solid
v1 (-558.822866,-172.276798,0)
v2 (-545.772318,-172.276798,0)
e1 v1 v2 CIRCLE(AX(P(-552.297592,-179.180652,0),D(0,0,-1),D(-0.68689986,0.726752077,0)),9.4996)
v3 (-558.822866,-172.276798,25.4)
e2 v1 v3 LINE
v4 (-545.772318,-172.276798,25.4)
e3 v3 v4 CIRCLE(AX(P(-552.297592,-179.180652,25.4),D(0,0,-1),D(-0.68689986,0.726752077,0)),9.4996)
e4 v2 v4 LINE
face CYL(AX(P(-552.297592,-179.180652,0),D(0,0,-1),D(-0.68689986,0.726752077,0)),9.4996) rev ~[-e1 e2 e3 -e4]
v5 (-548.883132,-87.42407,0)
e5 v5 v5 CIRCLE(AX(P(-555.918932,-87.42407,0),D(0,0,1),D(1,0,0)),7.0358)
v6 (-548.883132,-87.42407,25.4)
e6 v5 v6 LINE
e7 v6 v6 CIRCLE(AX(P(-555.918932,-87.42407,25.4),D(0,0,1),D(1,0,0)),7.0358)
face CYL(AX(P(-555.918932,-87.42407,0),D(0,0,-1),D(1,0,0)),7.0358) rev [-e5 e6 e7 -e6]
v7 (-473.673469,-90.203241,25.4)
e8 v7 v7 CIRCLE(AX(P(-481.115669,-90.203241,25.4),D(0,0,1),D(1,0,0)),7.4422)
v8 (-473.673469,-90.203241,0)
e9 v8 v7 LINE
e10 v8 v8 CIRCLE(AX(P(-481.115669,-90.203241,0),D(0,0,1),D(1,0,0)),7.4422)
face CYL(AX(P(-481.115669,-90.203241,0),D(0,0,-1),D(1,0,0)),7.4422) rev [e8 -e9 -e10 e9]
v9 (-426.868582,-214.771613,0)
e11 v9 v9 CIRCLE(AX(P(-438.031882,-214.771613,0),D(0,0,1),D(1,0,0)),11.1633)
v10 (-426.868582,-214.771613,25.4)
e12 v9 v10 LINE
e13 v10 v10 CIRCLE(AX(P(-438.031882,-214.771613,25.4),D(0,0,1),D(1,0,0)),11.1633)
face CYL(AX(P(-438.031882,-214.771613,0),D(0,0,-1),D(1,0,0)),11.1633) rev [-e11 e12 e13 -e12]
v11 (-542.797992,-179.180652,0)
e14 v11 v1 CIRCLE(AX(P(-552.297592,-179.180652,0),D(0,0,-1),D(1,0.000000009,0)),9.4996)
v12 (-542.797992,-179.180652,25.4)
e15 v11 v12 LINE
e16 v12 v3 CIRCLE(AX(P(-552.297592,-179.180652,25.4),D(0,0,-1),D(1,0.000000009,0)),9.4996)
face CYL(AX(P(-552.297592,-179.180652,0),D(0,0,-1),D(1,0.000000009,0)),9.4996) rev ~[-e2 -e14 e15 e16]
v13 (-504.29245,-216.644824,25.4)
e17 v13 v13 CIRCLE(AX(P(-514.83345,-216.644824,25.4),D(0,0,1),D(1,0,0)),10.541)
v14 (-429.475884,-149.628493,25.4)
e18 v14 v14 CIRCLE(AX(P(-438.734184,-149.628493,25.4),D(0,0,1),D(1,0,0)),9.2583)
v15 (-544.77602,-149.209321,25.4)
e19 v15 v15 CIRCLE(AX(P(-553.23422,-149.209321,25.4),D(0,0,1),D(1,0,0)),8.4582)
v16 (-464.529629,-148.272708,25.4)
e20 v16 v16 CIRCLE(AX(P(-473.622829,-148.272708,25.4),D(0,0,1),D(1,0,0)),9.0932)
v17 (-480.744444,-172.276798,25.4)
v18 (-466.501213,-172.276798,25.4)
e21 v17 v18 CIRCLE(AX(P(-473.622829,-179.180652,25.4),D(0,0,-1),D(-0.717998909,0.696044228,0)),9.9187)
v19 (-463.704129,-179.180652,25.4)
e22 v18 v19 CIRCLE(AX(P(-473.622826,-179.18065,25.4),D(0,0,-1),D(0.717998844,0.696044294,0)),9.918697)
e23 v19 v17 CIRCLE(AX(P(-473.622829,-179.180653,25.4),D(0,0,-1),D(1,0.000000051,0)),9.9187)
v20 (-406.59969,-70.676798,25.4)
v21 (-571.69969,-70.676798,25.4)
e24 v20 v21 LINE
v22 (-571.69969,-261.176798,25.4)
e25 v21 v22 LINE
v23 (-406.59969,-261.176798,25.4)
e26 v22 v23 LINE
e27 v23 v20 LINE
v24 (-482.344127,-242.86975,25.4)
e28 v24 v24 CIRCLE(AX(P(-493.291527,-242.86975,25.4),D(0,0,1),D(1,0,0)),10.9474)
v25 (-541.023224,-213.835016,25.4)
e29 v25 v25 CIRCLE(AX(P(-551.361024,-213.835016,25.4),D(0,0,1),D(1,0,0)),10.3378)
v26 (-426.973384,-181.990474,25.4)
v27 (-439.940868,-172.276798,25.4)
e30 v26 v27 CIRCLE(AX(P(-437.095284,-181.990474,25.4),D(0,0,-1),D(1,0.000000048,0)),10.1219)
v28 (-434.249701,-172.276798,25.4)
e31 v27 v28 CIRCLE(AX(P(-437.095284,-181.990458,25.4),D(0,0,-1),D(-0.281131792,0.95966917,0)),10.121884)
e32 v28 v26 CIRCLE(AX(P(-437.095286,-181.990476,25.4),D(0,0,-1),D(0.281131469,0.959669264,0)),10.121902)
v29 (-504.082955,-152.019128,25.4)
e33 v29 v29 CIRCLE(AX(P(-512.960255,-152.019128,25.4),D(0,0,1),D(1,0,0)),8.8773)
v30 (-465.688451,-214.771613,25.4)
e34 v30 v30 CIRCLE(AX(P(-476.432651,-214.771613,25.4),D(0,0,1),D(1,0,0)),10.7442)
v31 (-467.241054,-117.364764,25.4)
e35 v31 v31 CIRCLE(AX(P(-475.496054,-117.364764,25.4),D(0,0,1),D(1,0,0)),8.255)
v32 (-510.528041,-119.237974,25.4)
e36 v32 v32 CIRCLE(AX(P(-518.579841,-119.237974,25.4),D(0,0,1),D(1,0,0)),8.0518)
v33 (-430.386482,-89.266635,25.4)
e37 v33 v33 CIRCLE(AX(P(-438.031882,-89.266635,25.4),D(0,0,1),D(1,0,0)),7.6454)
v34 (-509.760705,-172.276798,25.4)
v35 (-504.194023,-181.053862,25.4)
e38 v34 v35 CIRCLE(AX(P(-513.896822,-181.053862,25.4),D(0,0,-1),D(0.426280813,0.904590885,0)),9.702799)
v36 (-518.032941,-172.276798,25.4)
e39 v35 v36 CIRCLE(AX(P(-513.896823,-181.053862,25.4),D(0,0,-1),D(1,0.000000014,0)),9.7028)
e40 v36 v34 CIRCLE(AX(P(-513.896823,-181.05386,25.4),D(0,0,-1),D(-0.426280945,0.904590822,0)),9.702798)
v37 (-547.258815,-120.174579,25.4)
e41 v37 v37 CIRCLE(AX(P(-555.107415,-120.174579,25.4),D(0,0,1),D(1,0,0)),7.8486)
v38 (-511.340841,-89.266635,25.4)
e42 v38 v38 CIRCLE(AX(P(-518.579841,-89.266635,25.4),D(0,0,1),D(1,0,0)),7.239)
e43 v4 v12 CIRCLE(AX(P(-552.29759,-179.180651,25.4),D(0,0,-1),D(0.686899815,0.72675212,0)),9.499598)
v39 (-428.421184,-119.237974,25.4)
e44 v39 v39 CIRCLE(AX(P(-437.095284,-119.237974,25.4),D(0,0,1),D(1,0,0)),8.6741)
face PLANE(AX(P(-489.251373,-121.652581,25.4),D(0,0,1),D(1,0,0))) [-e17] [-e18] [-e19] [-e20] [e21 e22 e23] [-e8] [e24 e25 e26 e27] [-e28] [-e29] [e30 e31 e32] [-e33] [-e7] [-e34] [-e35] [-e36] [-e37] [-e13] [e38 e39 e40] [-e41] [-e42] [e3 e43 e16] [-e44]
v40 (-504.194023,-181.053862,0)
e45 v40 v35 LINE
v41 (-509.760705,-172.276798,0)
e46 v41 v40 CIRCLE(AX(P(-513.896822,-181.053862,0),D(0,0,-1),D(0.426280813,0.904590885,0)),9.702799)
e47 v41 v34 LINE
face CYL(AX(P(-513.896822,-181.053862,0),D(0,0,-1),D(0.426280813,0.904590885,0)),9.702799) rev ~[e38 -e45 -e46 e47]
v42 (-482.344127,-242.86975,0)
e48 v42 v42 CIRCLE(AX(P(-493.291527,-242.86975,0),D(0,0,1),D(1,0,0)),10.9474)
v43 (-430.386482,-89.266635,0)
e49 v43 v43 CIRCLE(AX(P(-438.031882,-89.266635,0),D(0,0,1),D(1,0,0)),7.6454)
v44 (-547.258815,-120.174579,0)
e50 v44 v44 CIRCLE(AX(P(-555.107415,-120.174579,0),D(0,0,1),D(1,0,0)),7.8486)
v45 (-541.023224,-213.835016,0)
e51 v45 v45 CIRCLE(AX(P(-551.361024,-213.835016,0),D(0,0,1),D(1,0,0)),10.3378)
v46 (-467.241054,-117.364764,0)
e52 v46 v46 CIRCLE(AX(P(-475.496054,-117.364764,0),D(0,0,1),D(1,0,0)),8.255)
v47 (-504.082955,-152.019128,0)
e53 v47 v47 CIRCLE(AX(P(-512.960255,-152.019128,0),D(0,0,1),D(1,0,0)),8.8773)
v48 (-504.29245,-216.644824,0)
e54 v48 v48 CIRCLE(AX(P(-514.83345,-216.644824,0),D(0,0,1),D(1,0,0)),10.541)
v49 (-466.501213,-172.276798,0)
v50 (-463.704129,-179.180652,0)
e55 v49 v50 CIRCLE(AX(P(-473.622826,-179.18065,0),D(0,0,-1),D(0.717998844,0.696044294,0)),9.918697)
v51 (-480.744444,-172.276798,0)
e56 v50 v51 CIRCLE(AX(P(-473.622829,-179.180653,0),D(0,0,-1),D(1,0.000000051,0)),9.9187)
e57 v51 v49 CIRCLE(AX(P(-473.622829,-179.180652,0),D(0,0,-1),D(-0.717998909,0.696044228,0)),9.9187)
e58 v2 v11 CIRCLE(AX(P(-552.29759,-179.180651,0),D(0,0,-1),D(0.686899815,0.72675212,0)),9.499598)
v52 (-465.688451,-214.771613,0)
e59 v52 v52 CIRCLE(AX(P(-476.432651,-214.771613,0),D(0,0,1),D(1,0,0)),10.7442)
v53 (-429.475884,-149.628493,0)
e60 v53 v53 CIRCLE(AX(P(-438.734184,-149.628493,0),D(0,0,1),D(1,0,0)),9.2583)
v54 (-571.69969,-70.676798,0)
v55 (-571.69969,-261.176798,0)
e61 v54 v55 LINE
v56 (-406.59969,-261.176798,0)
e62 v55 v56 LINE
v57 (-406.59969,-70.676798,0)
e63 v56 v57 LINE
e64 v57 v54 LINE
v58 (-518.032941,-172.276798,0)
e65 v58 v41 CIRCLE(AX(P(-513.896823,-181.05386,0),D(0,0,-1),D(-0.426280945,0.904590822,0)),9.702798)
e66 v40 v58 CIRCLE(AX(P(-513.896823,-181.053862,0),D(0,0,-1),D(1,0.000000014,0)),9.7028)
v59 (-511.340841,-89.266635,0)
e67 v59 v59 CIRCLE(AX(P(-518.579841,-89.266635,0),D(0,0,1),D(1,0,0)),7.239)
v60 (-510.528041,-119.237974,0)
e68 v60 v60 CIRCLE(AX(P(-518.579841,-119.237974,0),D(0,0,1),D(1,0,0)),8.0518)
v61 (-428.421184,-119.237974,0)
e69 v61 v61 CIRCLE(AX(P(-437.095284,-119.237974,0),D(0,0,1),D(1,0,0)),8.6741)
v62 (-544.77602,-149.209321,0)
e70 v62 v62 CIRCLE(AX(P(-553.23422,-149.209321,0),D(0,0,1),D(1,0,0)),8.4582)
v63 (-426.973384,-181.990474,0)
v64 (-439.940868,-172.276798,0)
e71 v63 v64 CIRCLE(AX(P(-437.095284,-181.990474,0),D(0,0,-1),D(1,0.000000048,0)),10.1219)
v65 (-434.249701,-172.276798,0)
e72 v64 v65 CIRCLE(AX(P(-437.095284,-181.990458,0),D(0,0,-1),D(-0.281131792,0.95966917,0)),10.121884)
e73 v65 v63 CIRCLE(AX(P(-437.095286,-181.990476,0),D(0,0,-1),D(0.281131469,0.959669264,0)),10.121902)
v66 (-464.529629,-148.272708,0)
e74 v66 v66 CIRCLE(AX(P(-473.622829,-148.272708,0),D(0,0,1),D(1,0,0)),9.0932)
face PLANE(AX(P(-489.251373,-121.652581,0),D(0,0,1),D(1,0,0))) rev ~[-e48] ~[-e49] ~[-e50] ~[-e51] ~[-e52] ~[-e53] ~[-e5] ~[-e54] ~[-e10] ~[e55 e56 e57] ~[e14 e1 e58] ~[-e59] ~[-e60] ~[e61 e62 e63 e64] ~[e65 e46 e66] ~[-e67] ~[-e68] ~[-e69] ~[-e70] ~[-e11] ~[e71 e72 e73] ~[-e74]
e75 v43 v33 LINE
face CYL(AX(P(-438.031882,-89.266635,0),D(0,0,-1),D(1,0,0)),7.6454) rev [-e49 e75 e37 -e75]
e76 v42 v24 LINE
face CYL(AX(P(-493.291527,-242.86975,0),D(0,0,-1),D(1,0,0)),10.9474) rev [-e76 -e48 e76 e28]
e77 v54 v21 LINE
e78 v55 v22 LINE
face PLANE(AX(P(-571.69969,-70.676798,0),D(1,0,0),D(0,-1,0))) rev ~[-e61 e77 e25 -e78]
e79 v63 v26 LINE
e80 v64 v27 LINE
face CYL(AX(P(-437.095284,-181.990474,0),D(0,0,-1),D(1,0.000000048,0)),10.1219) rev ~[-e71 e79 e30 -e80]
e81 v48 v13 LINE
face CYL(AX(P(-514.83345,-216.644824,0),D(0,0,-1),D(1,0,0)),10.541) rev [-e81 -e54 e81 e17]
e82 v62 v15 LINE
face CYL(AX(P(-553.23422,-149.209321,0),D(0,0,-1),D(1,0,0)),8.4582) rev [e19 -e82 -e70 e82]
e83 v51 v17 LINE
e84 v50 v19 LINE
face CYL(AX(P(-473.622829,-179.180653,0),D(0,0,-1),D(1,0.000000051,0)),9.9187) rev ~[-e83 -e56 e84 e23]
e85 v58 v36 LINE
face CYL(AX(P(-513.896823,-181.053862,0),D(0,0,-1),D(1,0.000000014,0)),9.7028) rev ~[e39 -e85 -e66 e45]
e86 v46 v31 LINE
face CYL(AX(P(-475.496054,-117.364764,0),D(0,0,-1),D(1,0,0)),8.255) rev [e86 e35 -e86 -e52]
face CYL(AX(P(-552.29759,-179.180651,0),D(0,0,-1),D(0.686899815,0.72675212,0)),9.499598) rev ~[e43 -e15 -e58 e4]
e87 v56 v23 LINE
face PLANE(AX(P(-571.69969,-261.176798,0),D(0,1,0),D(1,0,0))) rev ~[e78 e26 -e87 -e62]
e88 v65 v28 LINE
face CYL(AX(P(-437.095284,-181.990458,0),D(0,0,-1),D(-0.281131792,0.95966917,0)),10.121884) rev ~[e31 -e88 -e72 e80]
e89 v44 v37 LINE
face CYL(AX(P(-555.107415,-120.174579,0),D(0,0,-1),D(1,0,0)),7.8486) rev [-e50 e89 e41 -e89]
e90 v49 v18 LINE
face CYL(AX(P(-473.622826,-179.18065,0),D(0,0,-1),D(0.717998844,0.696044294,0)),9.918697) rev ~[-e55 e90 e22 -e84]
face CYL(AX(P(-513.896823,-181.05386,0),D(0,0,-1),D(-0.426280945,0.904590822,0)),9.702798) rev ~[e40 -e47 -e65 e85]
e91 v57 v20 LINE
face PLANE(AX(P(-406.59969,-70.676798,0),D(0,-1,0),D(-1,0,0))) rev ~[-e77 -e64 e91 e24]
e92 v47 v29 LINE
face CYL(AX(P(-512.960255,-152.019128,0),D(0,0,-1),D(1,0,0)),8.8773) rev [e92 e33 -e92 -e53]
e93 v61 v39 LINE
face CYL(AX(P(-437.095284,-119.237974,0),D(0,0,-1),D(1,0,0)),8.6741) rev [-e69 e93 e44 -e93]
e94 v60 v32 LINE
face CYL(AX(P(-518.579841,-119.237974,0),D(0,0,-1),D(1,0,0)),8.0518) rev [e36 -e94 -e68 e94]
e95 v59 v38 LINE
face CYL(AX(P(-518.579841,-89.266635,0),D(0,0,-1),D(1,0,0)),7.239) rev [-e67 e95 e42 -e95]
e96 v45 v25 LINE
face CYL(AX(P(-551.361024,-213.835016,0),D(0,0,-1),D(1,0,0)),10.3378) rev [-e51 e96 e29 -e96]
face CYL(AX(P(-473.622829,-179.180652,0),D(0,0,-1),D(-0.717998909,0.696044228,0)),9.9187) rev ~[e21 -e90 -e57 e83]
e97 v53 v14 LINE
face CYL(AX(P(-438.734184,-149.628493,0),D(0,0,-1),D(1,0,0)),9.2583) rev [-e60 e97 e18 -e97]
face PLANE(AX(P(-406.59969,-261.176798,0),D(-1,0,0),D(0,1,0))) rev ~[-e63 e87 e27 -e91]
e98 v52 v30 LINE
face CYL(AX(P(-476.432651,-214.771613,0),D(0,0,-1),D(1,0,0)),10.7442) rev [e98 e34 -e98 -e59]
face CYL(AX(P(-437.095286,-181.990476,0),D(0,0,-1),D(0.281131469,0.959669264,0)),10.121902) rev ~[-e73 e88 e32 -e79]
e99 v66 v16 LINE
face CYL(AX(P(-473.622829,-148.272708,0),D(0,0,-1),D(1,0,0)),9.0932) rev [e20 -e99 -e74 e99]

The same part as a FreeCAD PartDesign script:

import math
import FreeCAD as App
import Part
import Sketcher
Q = App.Units.Quantity

doc = App.newDocument("Part")
body = doc.addObject("PartDesign::Body", "Body")

# Sketch on XY plane
sketch1 = doc.addObject("Sketcher::SketchObject", "Sketch")
body.addObject(sketch1)
sketch1.AttachmentSupport = (doc.XY_Plane, [""])
sketch1.MapMode = "FlatFace"
sketch1.addGeometry(Part.LineSegment(App.Vector(-407, -71, 0), App.Vector(-572, -71, 0)), False)
sketch1.addGeometry(Part.LineSegment(App.Vector(-572, -71, 0), App.Vector(-572, -261, 0)), False)
sketch1.addGeometry(Part.LineSegment(App.Vector(-572, -261, 0), App.Vector(-407, -261, 0)), False)
sketch1.addGeometry(Part.LineSegment(App.Vector(-407, -261, 0), App.Vector(-407, -71, 0)), False)
sketch1.addGeometry(Part.Circle(App.Vector(-551, -214, 0), App.Vector(0, 0, 1), 10), False)
sketch1.addGeometry(Part.Circle(App.Vector(-515, -217, 0), App.Vector(0, 0, 1), 11), False)
sketch1.addGeometry(Part.ArcOfCircle(Part.Circle(App.Vector(-552, -179, 0), App.Vector(0, 0, 1), 9), math.radians(47), math.radians(133)), False)
sketch1.addGeometry(Part.ArcOfCircle(Part.Circle(App.Vector(-552, -179, 0), App.Vector(0, 0, 1), 9), math.radians(0), math.radians(47)), False)
sketch1.addGeometry(Part.ArcOfCircle(Part.Circle(App.Vector(-552, -179, 0), App.Vector(0, 0, 1), 9), math.radians(133), math.radians(360)), False)
sketch1.addGeometry(Part.ArcOfCircle(Part.Circle(App.Vector(-514, -181, 0), App.Vector(0, 0, 1), 10), math.radians(65), math.radians(115)), False)
sketch1.addGeometry(Part.ArcOfCircle(Part.Circle(App.Vector(-514, -181, 0), App.Vector(0, 0, 1), 10), math.radians(0), math.radians(65)), False)
sketch1.addGeometry(Part.ArcOfCircle(Part.Circle(App.Vector(-514, -181, 0), App.Vector(0, 0, 1), 10), math.radians(115), math.radians(360)), False)
sketch1.addGeometry(Part.Circle(App.Vector(-493, -243, 0), App.Vector(0, 0, 1), 11), False)
sketch1.addGeometry(Part.Circle(App.Vector(-476, -215, 0), App.Vector(0, 0, 1), 11), False)
sketch1.addGeometry(Part.Circle(App.Vector(-438, -215, 0), App.Vector(0, 0, 1), 11), False)
sketch1.addGeometry(Part.ArcOfCircle(Part.Circle(App.Vector(-474, -179, 0), App.Vector(0, 0, 1), 10), math.radians(44), math.radians(136)), False)
sketch1.addGeometry(Part.ArcOfCircle(Part.Circle(App.Vector(-474, -179, 0), App.Vector(0, 0, 1), 10), math.radians(0), math.radians(44)), False)
sketch1.addGeometry(Part.ArcOfCircle(Part.Circle(App.Vector(-474, -179, 0), App.Vector(0, 0, 1), 10), math.radians(136), math.radians(360)), False)
sketch1.addGeometry(Part.ArcOfCircle(Part.Circle(App.Vector(-437, -182, 0), App.Vector(0, 0, 1), 10), math.radians(74), math.radians(106)), False)
sketch1.addGeometry(Part.ArcOfCircle(Part.Circle(App.Vector(-437, -182, 0), App.Vector(0, 0, 1), 10), math.radians(0), math.radians(74)), False)
sketch1.addGeometry(Part.ArcOfCircle(Part.Circle(App.Vector(-437, -182, 0), App.Vector(0, 0, 1), 10), math.radians(106), math.radians(360)), False)
sketch1.addGeometry(Part.Circle(App.Vector(-553, -149, 0), App.Vector(0, 0, 1), 8), False)
sketch1.addGeometry(Part.Circle(App.Vector(-513, -152, 0), App.Vector(0, 0, 1), 9), False)
sketch1.addGeometry(Part.Circle(App.Vector(-555, -120, 0), App.Vector(0, 0, 1), 8), False)
sketch1.addGeometry(Part.Circle(App.Vector(-556, -87, 0), App.Vector(0, 0, 1), 7), False)
sketch1.addGeometry(Part.Circle(App.Vector(-519, -119, 0), App.Vector(0, 0, 1), 8), False)
sketch1.addGeometry(Part.Circle(App.Vector(-519, -89, 0), App.Vector(0, 0, 1), 7), False)
sketch1.addGeometry(Part.Circle(App.Vector(-474, -148, 0), App.Vector(0, 0, 1), 9), False)
sketch1.addGeometry(Part.Circle(App.Vector(-439, -150, 0), App.Vector(0, 0, 1), 9), False)
sketch1.addGeometry(Part.Circle(App.Vector(-475, -117, 0), App.Vector(0, 0, 1), 8), False)
sketch1.addGeometry(Part.Circle(App.Vector(-481, -90, 0), App.Vector(0, 0, 1), 7), False)
sketch1.addGeometry(Part.Circle(App.Vector(-437, -119, 0), App.Vector(0, 0, 1), 9), False)
sketch1.addGeometry(Part.Circle(App.Vector(-438, -89, 0), App.Vector(0, 0, 1), 8), False)
sketch1.addConstraint(Sketcher.Constraint("Coincident", 0, 2, 1, 1))
sketch1.addConstraint(Sketcher.Constraint("Coincident", 1, 2, 2, 1))
sketch1.addConstraint(Sketcher.Constraint("Coincident", 2, 2, 3, 1))
sketch1.addConstraint(Sketcher.Constraint("Coincident", 3, 2, 0, 1))
sketch1.addConstraint(Sketcher.Constraint("Tangent", 6, 1, 7, 2))
sketch1.addConstraint(Sketcher.Constraint("Tangent", 7, 1, 8, 2))
sketch1.addConstraint(Sketcher.Constraint("Tangent", 8, 1, 6, 2))
sketch1.addConstraint(Sketcher.Constraint("Tangent", 9, 1, 10, 2))
sketch1.addConstraint(Sketcher.Constraint("Tangent", 10, 1, 11, 2))
sketch1.addConstraint(Sketcher.Constraint("Tangent", 11, 1, 9, 2))
sketch1.addConstraint(Sketcher.Constraint("Tangent", 15, 1, 16, 2))
sketch1.addConstraint(Sketcher.Constraint("Tangent", 16, 1, 17, 2))
sketch1.addConstraint(Sketcher.Constraint("Tangent", 17, 1, 15, 2))
sketch1.addConstraint(Sketcher.Constraint("Tangent", 18, 1, 19, 2))
sketch1.addConstraint(Sketcher.Constraint("Tangent", 19, 1, 20, 2))
sketch1.addConstraint(Sketcher.Constraint("Tangent", 20, 1, 18, 2))
sketch1.addConstraint(Sketcher.Constraint("Horizontal", 0))
sketch1.addConstraint(Sketcher.Constraint("Vertical", 1))
sketch1.addConstraint(Sketcher.Constraint("Horizontal", 2))
sketch1.addConstraint(Sketcher.Constraint("Vertical", 3))
sketch1.addConstraint(Sketcher.Constraint("Horizontal", 13, 3, 14, 3))
sketch1.addConstraint(Sketcher.Constraint("Horizontal", 8, 3, 15, 3))
sketch1.addConstraint(Sketcher.Constraint("Horizontal", 25, 3, 31, 3))
sketch1.addConstraint(Sketcher.Constraint("Horizontal", 26, 3, 32, 3))
sketch1.addConstraint(Sketcher.Constraint("Horizontal", 17, 3, 7, 1))
sketch1.addConstraint(Sketcher.Constraint("Horizontal", 6, 1, 8, 1))
sketch1.addConstraint(Sketcher.Constraint("Horizontal", 8, 1, 9, 1))
sketch1.addConstraint(Sketcher.Constraint("Horizontal", 11, 3, 10, 1))
sketch1.addConstraint(Sketcher.Constraint("Horizontal", 9, 1, 11, 1))
sketch1.addConstraint(Sketcher.Constraint("Horizontal", 11, 1, 15, 1))
sketch1.addConstraint(Sketcher.Constraint("Horizontal", 7, 1, 16, 1))
sketch1.addConstraint(Sketcher.Constraint("Horizontal", 15, 1, 17, 1))
sketch1.addConstraint(Sketcher.Constraint("Horizontal", 17, 1, 18, 1))
sketch1.addConstraint(Sketcher.Constraint("Horizontal", 20, 3, 19, 1))
sketch1.addConstraint(Sketcher.Constraint("Horizontal", 18, 1, 20, 1))
sketch1.addConstraint(Sketcher.Constraint("Vertical", 25, 3, 26, 3))
sketch1.addConstraint(Sketcher.Constraint("Vertical", 17, 3, 27, 3))
sketch1.addConstraint(Sketcher.Constraint("Vertical", 20, 3, 31, 3))
sketch1.addConstraint(Sketcher.Constraint("Vertical", 14, 3, 32, 3))
sketch1.addConstraint(Sketcher.Constraint("Diameter", 5, Q("0.83 in")))
sketch1.addConstraint(Sketcher.Constraint("Diameter", 26, Q("0.57 in")))
sketch1.addConstraint(Sketcher.Constraint("Diameter", 29, Q("0.65 in")))
sketch1.addConstraint(Sketcher.Constraint("Diameter", 4, Q("0.814 in")))
sketch1.addConstraint(Sketcher.Constraint("Diameter", 12, Q("0.862 in")))
sketch1.addConstraint(Sketcher.Constraint("Diameter", 13, Q("0.846 in")))
sketch1.addConstraint(Sketcher.Constraint("Diameter", 14, Q("0.879 in")))
sketch1.addConstraint(Sketcher.Constraint("Diameter", 21, Q("0.666 in")))
sketch1.addConstraint(Sketcher.Constraint("Diameter", 22, Q("0.699 in")))
sketch1.addConstraint(Sketcher.Constraint("Diameter", 23, Q("0.618 in")))
sketch1.addConstraint(Sketcher.Constraint("Diameter", 24, Q("0.554 in")))
sketch1.addConstraint(Sketcher.Constraint("Diameter", 25, Q("0.634 in")))
sketch1.addConstraint(Sketcher.Constraint("Diameter", 27, Q("0.716 in")))
sketch1.addConstraint(Sketcher.Constraint("Diameter", 28, Q("0.729 in")))
sketch1.addConstraint(Sketcher.Constraint("Diameter", 30, Q("0.586 in")))
sketch1.addConstraint(Sketcher.Constraint("Diameter", 31, Q("0.683 in")))
sketch1.addConstraint(Sketcher.Constraint("Diameter", 32, Q("0.602 in")))
sketch1.addConstraint(Sketcher.Constraint("DistanceX", 0, 2, 0, 1, Q("6.5 in")))
sketch1.addConstraint(Sketcher.Constraint("DistanceY", 1, 2, 1, 1, Q("7.5 in")))
sketch1.addConstraint(Sketcher.Constraint("Radius", 6, Q("0.374 in")))
sketch1.addConstraint(Sketcher.Constraint("Radius", 9, Q("0.3819999 in")))
sketch1.addConstraint(Sketcher.Constraint("Radius", 15, Q("0.3905 in")))
sketch1.addConstraint(Sketcher.Constraint("Radius", 19, Q("0.3985001 in")))
sketch1.addConstraint(Sketcher.Constraint("DistanceY", 21, 3, 23, 3, Q("1.1431001 in")))
sketch1.addConstraint(Sketcher.Constraint("DistanceX", 30, 3, 3, 2, Q("2.9337 in")))
sketch1.addConstraint(Sketcher.Constraint("DistanceY", 0, 2, -1, 1, 70.676798))
sketch1.addConstraint(Sketcher.Constraint("DistanceY", 11, 1, -1, 1, 172.276798))
sketch1.addConstraint(Sketcher.Constraint("DistanceX", 18, 1, -1, 1, 434.249701))
sketch1.addConstraint(Sketcher.Constraint("DistanceX", 4, 3, 9, 3, 37.464201))
sketch1.addConstraint(Sketcher.Constraint("DistanceX", 5, 3, 13, 3, 38.400799))
sketch1.addConstraint(Sketcher.Constraint("DistanceX", 14, 3, 20, 3, 0.936598))
sketch1.addConstraint(Sketcher.Constraint("DistanceX", 28, 3, 18, 3, 1.6389))
sketch1.addConstraint(Sketcher.Constraint("DistanceX", 22, 3, 29, 3, 37.464201))
sketch1.addConstraint(Sketcher.Constraint("DistanceX", 1, 2, 6, 3, 19.402098))
sketch1.addConstraint(Sketcher.Constraint("DistanceX", 5, 3, -1, 1, 514.83345))
sketch1.addConstraint(Sketcher.Constraint("DistanceX", 6, 3, -1, 1, 552.297592))
sketch1.addConstraint(Sketcher.Constraint("DistanceY", 7, 3, -1, 1, 179.180651))
sketch1.addConstraint(Sketcher.Constraint("DistanceY", 9, 3, -1, 1, 181.05386))
sketch1.addConstraint(Sketcher.Constraint("DistanceY", 12, 3, -1, 1, 242.86975))
sketch1.addConstraint(Sketcher.Constraint("DistanceX", 14, 3, -1, 1, 438.031882))
sketch1.addConstraint(Sketcher.Constraint("DistanceX", 15, 3, -1, 1, 473.622829))
sketch1.addConstraint(Sketcher.Constraint("DistanceX", 21, 3, -1, 1, 553.23422))
sketch1.addConstraint(Sketcher.Constraint("DistanceY", 21, 3, -1, 1, 149.209321))
sketch1.addConstraint(Sketcher.Constraint("DistanceY", 22, 3, -1, 1, 152.019128))
sketch1.addConstraint(Sketcher.Constraint("DistanceX", 24, 3, -1, 1, 555.918932))
sketch1.addConstraint(Sketcher.Constraint("DistanceY", 24, 3, -1, 1, 87.42407))
sketch1.addConstraint(Sketcher.Constraint("DistanceX", 25, 3, -1, 1, 518.579841))
sketch1.addConstraint(Sketcher.Constraint("DistanceY", 27, 3, -1, 1, 148.272708))
sketch1.addConstraint(Sketcher.Constraint("DistanceY", 30, 3, -1, 1, 90.203241))
sketch1.addConstraint(Sketcher.Constraint("DistanceX", 11, 1, -1, 1, 518.032941))
sketch1.addConstraint(Sketcher.Constraint("DistanceY", 5, 3, 4, 3, 2.809808))
sketch1.addConstraint(Sketcher.Constraint("DistanceY", 5, 3, 6, 3, 37.464172))
sketch1.addConstraint(Sketcher.Constraint("DistanceY", 5, 3, 13, 3, 1.873211))
sketch1.addConstraint(Sketcher.Constraint("DistanceX", 9, 3, 22, 3, 0.936568))
sketch1.addConstraint(Sketcher.Constraint("DistanceX", 23, 3, 22, 3, 42.14716))
sketch1.addConstraint(Sketcher.Constraint("DistanceY", 25, 3, 26, 3, 29.971339))
sketch1.addConstraint(Sketcher.Constraint("DistanceY", 20, 3, 28, 3, 32.361981))
sketch1.addConstraint(Sketcher.Constraint("DistanceY", 25, 3, 29, 3, 1.87321))
sketch1.addConstraint(Sketcher.Constraint("DistanceY", 28, 3, 29, 3, 32.263729))
sketch1.addConstraint(Sketcher.Constraint("DistanceX", 12, 3, -1, 1, 493.291527))
pad1 = doc.addObject("PartDesign::Pad", "Pad")
body.addObject(pad1)
pad1.Profile = sketch1
pad1.Length = Q("1 in")

doc.recompute()
